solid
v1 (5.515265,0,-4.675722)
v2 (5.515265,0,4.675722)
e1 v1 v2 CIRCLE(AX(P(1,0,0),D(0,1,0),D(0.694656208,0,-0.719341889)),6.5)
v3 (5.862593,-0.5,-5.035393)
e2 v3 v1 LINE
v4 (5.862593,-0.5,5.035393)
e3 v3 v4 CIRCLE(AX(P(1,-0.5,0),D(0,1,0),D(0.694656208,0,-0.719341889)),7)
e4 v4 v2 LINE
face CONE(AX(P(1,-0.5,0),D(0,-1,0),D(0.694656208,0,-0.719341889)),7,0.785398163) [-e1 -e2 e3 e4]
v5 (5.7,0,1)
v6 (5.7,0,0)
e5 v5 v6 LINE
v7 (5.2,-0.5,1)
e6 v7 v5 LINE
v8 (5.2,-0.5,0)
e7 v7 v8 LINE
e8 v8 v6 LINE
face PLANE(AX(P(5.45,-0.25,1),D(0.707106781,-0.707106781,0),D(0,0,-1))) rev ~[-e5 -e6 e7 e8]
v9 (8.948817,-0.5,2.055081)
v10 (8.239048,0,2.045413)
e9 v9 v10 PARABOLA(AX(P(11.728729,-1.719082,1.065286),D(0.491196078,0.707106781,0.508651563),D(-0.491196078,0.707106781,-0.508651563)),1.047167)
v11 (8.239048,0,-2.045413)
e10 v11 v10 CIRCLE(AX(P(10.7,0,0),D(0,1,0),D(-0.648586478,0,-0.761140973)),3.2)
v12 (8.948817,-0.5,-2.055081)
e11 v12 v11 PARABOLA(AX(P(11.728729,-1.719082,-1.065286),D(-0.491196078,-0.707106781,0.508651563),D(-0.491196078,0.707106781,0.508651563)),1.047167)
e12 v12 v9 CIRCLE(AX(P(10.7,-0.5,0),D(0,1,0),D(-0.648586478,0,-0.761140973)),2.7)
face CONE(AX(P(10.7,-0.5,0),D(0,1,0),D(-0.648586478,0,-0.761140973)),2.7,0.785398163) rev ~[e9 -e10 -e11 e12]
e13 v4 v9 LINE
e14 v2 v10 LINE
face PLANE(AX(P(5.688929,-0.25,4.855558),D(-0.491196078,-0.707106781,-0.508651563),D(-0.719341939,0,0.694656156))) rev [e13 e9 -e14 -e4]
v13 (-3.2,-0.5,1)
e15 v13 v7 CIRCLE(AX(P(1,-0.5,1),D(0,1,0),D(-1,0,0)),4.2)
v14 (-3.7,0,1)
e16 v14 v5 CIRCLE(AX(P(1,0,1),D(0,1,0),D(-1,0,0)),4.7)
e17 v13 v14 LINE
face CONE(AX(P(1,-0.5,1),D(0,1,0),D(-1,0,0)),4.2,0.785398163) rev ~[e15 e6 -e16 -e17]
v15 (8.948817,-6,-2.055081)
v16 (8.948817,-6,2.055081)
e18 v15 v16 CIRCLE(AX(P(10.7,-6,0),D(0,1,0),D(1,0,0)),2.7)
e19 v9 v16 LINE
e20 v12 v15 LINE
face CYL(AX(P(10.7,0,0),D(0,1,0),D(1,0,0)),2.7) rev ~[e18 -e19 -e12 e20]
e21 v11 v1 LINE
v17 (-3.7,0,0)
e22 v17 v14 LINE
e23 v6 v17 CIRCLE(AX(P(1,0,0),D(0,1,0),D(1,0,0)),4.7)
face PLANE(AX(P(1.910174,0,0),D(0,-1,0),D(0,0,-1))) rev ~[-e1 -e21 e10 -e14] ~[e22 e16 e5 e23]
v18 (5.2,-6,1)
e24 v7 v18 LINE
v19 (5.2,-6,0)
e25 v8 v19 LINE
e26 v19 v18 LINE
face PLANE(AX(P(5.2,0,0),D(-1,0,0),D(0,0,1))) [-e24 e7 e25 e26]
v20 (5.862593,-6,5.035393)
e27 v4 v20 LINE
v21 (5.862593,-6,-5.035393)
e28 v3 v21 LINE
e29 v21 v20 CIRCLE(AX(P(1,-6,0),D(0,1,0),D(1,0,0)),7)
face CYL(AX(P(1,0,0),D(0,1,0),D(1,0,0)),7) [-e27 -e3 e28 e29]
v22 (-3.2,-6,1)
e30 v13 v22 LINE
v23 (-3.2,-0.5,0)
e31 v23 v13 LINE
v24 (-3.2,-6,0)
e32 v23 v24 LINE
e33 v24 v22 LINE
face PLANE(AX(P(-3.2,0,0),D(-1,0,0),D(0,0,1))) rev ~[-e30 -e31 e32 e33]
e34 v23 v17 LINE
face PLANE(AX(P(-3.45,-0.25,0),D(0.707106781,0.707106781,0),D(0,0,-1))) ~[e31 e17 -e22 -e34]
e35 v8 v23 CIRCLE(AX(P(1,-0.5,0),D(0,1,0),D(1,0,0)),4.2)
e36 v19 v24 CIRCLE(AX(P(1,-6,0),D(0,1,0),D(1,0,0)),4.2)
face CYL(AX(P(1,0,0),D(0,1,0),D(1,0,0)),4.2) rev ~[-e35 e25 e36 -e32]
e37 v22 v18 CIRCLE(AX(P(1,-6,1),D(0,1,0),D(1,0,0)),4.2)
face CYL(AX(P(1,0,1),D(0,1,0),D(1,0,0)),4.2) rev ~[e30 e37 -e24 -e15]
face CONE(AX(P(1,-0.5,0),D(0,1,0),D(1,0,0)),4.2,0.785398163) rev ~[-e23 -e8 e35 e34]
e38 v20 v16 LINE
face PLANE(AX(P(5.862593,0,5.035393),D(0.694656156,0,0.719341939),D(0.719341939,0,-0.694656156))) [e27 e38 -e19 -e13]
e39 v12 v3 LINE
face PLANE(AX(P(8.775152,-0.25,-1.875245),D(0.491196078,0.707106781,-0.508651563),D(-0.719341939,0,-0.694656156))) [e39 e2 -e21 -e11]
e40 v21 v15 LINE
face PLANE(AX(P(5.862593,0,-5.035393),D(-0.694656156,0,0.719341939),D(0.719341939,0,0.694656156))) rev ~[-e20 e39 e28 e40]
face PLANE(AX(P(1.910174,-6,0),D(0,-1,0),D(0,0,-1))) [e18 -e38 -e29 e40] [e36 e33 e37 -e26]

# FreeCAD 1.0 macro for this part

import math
import FreeCAD as App
import Part
import Sketcher
Q = App.Units.Quantity


def edges_at(feature, points):
    """Names of the edges that pass closest to the given points."""
    edges = feature.Shape.Edges
    near = lambda p: min(range(len(edges)), key=lambda i: edges[i].distToShape(Part.Vertex(*p))[0])
    return sorted({f"Edge{near(p) + 1}" for p in points})

doc = App.newDocument("Part")
body = doc.addObject("PartDesign::Body", "Body")

sketch1 = body.newObject("Sketcher::SketchObject", "Sketch")
sketch1.AttachmentSupport = (doc.getObject("XZ_Plane"), [""])
sketch1.MapMode = "FlatFace"
sketch1.addGeometry(Part.ArcOfCircle(Part.Circle(App.Vector(1, 0, 0), App.Vector(0, 0, 1), 7), math.radians(46), math.radians(314)), False)
sketch1.addGeometry(Part.LineSegment(App.Vector(5.9, -5, 0), App.Vector(8.9, -2.1, 0)), False)
sketch1.addGeometry(Part.ArcOfCircle(Part.Circle(App.Vector(10.7, 0, 0), App.Vector(0, 0, 1), 2.7), math.radians(130), math.radians(230)), False)
sketch1.addGeometry(Part.LineSegment(App.Vector(8.9, 2.1, 0), App.Vector(5.9, 5, 0)), False)
sketch1.addGeometry(Part.ArcOfCircle(Part.Circle(App.Vector(1, 0, 0), App.Vector(0, 0, 1), 4.2), math.radians(180), math.radians(360)), False)
sketch1.addGeometry(Part.LineSegment(App.Vector(-3.2, 0, 0), App.Vector(-3.2, 1, 0)), False)
sketch1.addGeometry(Part.ArcOfCircle(Part.Circle(App.Vector(1, 1, 0), App.Vector(0, 0, 1), 4.2), math.radians(0), math.radians(180)), False)
sketch1.addGeometry(Part.LineSegment(App.Vector(5.2, 1, 0), App.Vector(5.2, 0, 0)), False)
sketch1.addConstraint(Sketcher.Constraint("Tangent", 0, 2, 1, 1))
sketch1.addConstraint(Sketcher.Constraint("Coincident", 1, 2, 2, 2))
sketch1.addConstraint(Sketcher.Constraint("Coincident", 2, 1, 3, 1))
sketch1.addConstraint(Sketcher.Constraint("Tangent", 3, 2, 0, 1))
sketch1.addConstraint(Sketcher.Constraint("Tangent", 4, 1, 5, 1))
sketch1.addConstraint(Sketcher.Constraint("Tangent", 5, 2, 6, 2))
sketch1.addConstraint(Sketcher.Constraint("Tangent", 6, 1, 7, 1))
sketch1.addConstraint(Sketcher.Constraint("Tangent", 7, 2, 4, 2))
sketch1.addConstraint(Sketcher.Constraint("Vertical", 5))
sketch1.addConstraint(Sketcher.Constraint("Vertical", 7))
sketch1.addConstraint(Sketcher.Constraint("Coincident", 4, 3, 0, 3))
sketch1.addConstraint(Sketcher.Constraint("Symmetric", 1, 2, 2, 1, -1))
sketch1.addConstraint(Sketcher.Constraint("PointOnObject", 0, 3, -1))
sketch1.addConstraint(Sketcher.Constraint("Radius", 0, Q("7 mm")))
sketch1.addConstraint(Sketcher.Constraint("Radius", 2, Q("2.7 mm")))
sketch1.addConstraint(Sketcher.Constraint("Radius", 4, Q("4.2 mm")))
sketch1.addConstraint(Sketcher.Constraint("DistanceY", 5, 1, 5, 2, Q("1 mm")))
sketch1.addConstraint(Sketcher.Constraint("Angle", 1, Q("44 deg")))
sketch1.addConstraint(Sketcher.Constraint("DistanceX", -1, 1, 0, 3, Q("1 mm")))
sketch1.addConstraint(Sketcher.Constraint("DistanceX", -1, 1, 2, 3, Q("10.7 mm")))
pad1 = body.newObject("PartDesign::Pad", "Pad")
pad1.Profile = sketch1
pad1.Length = 6
doc.recompute()

chamfer = body.newObject("PartDesign::Chamfer", "Chamfer")
chamfer.Base = (pad1, edges_at(pad1, [
    (1, 0, 5.2),
    (5.2, 0, 0.5),
    (1, 0, -4.2),
    (-3.2, 0, 0.5),
    (-6, 0, 0),
    (7.406, 0, -3.545),
    (7.406, 0, 3.545),
    (8, 0, 0),
]))
chamfer.Size = 0.5

doc.recompute()
